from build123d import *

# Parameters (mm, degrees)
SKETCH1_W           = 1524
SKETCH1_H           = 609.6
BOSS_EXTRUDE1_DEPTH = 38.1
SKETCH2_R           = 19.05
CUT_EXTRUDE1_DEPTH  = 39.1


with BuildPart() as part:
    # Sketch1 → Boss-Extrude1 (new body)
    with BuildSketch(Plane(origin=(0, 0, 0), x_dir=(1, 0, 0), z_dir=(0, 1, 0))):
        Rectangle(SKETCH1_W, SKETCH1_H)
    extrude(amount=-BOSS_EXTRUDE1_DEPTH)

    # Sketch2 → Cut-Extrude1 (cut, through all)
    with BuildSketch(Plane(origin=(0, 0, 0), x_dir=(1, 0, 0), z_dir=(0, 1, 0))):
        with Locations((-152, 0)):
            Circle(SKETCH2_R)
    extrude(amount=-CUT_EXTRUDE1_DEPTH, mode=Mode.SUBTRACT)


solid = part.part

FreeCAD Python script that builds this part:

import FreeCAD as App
import Part
import Sketcher
Q = App.Units.Quantity

doc = App.newDocument("Part")
body = doc.addObject("PartDesign::Body", "Body")

# Sketch on XZ plane
sketch1 = body.newObject("Sketcher::SketchObject", "Sketch")
sketch1.AttachmentSupport = (doc.getObject("XZ_Plane"), [""])
sketch1.MapMode = "FlatFace"
sketch1.addGeometry([
    Part.LineSegment(App.Vector(-762, -305, 0), App.Vector(-762, 305, 0)),
    Part.LineSegment(App.Vector(-762, 305, 0), App.Vector(762, 305, 0)),
    Part.LineSegment(App.Vector(762, 305, 0), App.Vector(762, -305, 0)),
    Part.LineSegment(App.Vector(762, -305, 0), App.Vector(-762, -305, 0)),
], False)
sketch1.addConstraint([
    Sketcher.Constraint("Coincident", 0, 2, 1, 1),
    Sketcher.Constraint("Coincident", 1, 2, 2, 1),
    Sketcher.Constraint("Coincident", 2, 2, 3, 1),
    Sketcher.Constraint("Coincident", 3, 2, 0, 1),
    Sketcher.Constraint("Vertical", 0),
    Sketcher.Constraint("Horizontal", 1),
    Sketcher.Constraint("Vertical", 2),
    Sketcher.Constraint("Horizontal", 3),
    Sketcher.Constraint("Symmetric", 0, 2, 2, 2, -1, 1),
    Sketcher.Constraint("DistanceX", 1, 1, 1, 2, Q("60 in")),
    Sketcher.Constraint("DistanceY", 0, 1, 0, 2, Q("24 in")),
])
pad1 = body.newObject("PartDesign::Pad", "Pad")
pad1.Profile = sketch1
pad1.Length = Q("1.5 in")

# Sketch on XZ plane
sketch2 = body.newObject("Sketcher::SketchObject", "Sketch001")
sketch2.AttachmentSupport = (doc.getObject("XZ_Plane"), [""])
sketch2.MapMode = "FlatFace"
sketch2.addGeometry(Part.Circle(App.Vector(-152, 0, 0), App.Vector(0, 0, 1), 19), False)
sketch2.addConstraint([
    Sketcher.Constraint("PointOnObject", 0, 3, -1),
    Sketcher.Constraint("Diameter", 0, Q("1.5 in")),
    Sketcher.Constraint("DistanceX", 0, 3, -1, 1, 152.0),
])
pocket1 = body.newObject("PartDesign::Pocket", "Pocket")
pocket1.Profile = sketch2
pocket1.Type = "ThroughAll"
pocket1.Reversed = True

doc.recompute()
